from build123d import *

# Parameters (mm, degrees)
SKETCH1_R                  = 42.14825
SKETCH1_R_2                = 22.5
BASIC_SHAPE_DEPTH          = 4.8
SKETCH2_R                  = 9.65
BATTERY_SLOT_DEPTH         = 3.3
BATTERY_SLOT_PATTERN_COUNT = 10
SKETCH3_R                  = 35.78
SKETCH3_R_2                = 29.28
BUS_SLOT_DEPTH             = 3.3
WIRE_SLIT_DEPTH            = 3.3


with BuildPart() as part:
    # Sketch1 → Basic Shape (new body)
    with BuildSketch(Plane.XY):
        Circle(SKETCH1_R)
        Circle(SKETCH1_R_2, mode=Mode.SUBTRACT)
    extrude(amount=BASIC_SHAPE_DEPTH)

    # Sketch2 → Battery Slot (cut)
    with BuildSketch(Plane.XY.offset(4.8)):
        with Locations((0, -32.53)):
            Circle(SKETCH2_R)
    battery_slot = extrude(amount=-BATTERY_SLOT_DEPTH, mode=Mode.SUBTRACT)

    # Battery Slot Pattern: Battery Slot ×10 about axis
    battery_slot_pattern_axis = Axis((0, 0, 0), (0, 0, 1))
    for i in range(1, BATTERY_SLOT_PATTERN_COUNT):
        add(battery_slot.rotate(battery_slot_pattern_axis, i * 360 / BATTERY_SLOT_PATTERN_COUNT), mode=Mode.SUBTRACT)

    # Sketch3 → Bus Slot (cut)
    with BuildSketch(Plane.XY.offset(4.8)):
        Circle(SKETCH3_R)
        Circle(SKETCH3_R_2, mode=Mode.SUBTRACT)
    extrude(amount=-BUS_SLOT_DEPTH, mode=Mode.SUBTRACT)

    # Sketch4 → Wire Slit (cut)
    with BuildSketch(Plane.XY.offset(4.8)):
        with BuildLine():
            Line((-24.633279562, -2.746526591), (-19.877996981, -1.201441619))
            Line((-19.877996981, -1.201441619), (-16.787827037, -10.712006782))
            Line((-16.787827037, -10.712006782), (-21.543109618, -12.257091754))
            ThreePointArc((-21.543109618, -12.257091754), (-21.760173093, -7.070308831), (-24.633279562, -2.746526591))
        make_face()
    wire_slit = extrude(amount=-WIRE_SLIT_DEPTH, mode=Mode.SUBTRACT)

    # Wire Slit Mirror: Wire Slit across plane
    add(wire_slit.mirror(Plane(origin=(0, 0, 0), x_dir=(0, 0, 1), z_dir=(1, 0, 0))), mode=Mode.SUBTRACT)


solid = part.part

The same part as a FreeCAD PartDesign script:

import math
import FreeCAD as App
import Part
import Sketcher
from FreeCAD import Vector
Q = App.Units.Quantity

doc = App.newDocument("Part")
body = doc.addObject("PartDesign::Body", "Body")

# Sketch on XY plane
sketch1 = body.newObject("Sketcher::SketchObject", "Sketch")
sketch1.AttachmentSupport = (doc.getObject("XY_Plane"), [""])
sketch1.MapMode = "FlatFace"
sketch1.addGeometry([
    Part.Circle(Vector(0, 0, 0), Vector(0, 0, 1), 42.14825),
    Part.Circle(Vector(0, 0, 0), Vector(0, 0, 1), 22.5),
], False)
sketch1.addConstraint([
    Sketcher.Constraint("Coincident", 0, 3, -1, 1),
    Sketcher.Constraint("Coincident", 1, 3, -1, 1),
    Sketcher.Constraint("Diameter", 1, Q("45 mm")),
    Sketcher.Constraint("Diameter", 0, Q("84.2965 mm")),
])
pad1 = body.newObject("PartDesign::Pad", "Pad")
pad1.Profile = sketch1
pad1.Length = 4.8

# Sketch on XY plane
sketch2 = body.newObject("Sketcher::SketchObject", "Sketch001")
sketch2.AttachmentSupport = (doc.getObject("XY_Plane"), [""])
sketch2.MapMode = "FlatFace"
sketch2.AttachmentOffset = App.Placement(Vector(0, 0, 4.8), App.Rotation())
sketch2.addGeometry(Part.Circle(Vector(0, -32.53, 0), Vector(0, 0, 1), 9.65), False)
sketch2.addConstraint([
    Sketcher.Constraint("PointOnObject", 0, 3, -2),
    Sketcher.Constraint("Diameter", 0, Q("19.3 mm")),
    Sketcher.Constraint("DistanceY", 0, 3, -1, 1, Q("32.53 mm")),
])
pocket1 = body.newObject("PartDesign::Pocket", "Pocket")
pocket1.Profile = sketch2
pocket1.Length = 3.3
doc.recompute()

polarpattern = body.newObject("PartDesign::PolarPattern", "PolarPattern")
polarpattern.Originals = [pocket1]
polarpattern.Axis = (doc.getObject("Z_Axis"), [""])
polarpattern.Angle = 360
polarpattern.Occurrences = 10
body.Tip = polarpattern

# Sketch on XY plane
sketch3 = body.newObject("Sketcher::SketchObject", "Sketch002")
sketch3.AttachmentSupport = (doc.getObject("XY_Plane"), [""])
sketch3.MapMode = "FlatFace"
sketch3.AttachmentOffset = App.Placement(Vector(0, 0, 4.8), App.Rotation())
sketch3.addGeometry([
    Part.Circle(Vector(0, 0, 0), Vector(0, 0, 1), 35.78),
    Part.Circle(Vector(0, 0, 0), Vector(0, 0, 1), 29.28),
], False)
sketch3.addConstraint([
    Sketcher.Constraint("Coincident", 0, 3, -1, 1),
    Sketcher.Constraint("Coincident", 1, 3, -1, 1),
    Sketcher.Constraint("Diameter", 0, Q("71.56 mm")),
    Sketcher.Constraint("Diameter", 1, Q("58.56 mm")),
])
pocket2 = body.newObject("PartDesign::Pocket", "Pocket001")
pocket2.Profile = sketch3
pocket2.Length = 3.3

# Sketch on XY plane
sketch4 = body.newObject("Sketcher::SketchObject", "Sketch003")
sketch4.AttachmentSupport = (doc.getObject("XY_Plane"), [""])
sketch4.MapMode = "FlatFace"
sketch4.AttachmentOffset = App.Placement(Vector(0, 0, 4.8), App.Rotation())
sketch4.addGeometry([
    Part.LineSegment(Vector(-19.877997, -1.201442, 0), Vector(-24.63328, -2.746527, 0)),
    Part.ArcOfCircle(Part.Circle(Vector(-30.937868, -10.052323, 0), Vector(0, 0, 1), 9.65), math.radians(-13.207215), math.radians(49.207215)),
    Part.LineSegment(Vector(-21.54311, -12.257092, 0), Vector(-16.787827, -10.712007, 0)),
    Part.LineSegment(Vector(-16.787827, -10.712007, 0), Vector(-19.877997, -1.201442, 0)),
], False)
sketch4.addConstraint([
    Sketcher.Constraint("Coincident", 0, 2, 1, 2),
    Sketcher.Constraint("Coincident", 1, 1, 2, 1),
    Sketcher.Constraint("Coincident", 2, 2, 3, 1),
    Sketcher.Constraint("Coincident", 3, 2, 0, 1),
    Sketcher.Constraint("Parallel", 0, 2),
    Sketcher.Constraint("Perpendicular", 2, 3),
    Sketcher.Constraint("Equal", 0, 2),
    Sketcher.Constraint("Angle", 0, Q("-162 deg")),
    Sketcher.Constraint("Radius", 1, Q("9.65 mm")),
    Sketcher.Constraint("Distance", 0, Q("5 mm")),
    Sketcher.Constraint("Distance", 3, Q("10 mm")),
    Sketcher.Constraint("DistanceX", 1, 3, -1, 1, Q("30.937868 mm")),
    Sketcher.Constraint("DistanceY", 1, 1, -1, 1, Q("12.257092 mm")),
])
pocket3 = body.newObject("PartDesign::Pocket", "Pocket002")
pocket3.Profile = sketch4
pocket3.Length = 3.3
doc.recompute()

mirrored = body.newObject("PartDesign::Mirrored", "Mirrored")
mirrored.Originals = [pocket3]
mirrored.MirrorPlane = (doc.getObject("YZ_Plane"), [""])
body.Tip = mirrored

doc.recompute()
